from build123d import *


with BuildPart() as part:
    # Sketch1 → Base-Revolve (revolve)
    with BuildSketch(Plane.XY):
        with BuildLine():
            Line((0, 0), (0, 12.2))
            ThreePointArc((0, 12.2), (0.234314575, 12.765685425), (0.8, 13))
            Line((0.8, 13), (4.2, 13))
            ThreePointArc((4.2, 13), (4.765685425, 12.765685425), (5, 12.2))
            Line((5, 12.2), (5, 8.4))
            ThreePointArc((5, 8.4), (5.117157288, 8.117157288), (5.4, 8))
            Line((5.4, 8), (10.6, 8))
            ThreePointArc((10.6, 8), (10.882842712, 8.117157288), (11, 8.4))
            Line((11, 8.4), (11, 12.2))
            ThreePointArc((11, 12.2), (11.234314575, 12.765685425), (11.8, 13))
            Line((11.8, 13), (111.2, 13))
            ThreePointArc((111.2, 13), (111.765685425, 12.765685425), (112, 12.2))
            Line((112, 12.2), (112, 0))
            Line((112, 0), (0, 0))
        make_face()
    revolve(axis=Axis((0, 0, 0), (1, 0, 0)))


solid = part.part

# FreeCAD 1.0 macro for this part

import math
import FreeCAD as App
import Part
import Sketcher
Q = App.Units.Quantity

doc = App.newDocument("Part")
params = doc.addObject("Spreadsheet::Sheet", "Params")
for row, (alias, value) in enumerate([
    ("sketch1_radius", "0.8 mm"),
    ("sketch1_radius2", "0.4 mm"),
    ("sketch1_width", "112 mm"),
    ("sketch1_width2", "99.4 mm"),
    ("sketch1_width3", "5.2 mm"),
    ("revolution_angle", "360 deg"),
], start=1):
    params.set(f"A{row}", alias)
    params.set(f"B{row}", "=" + value)
    params.setAlias(f"B{row}", alias)

body = doc.addObject("PartDesign::Body", "Body")

# Sketch on XY plane
sketch1 = body.newObject("Sketcher::SketchObject", "Sketch")
sketch1.AttachmentSupport = (doc.getObject("XY_Plane"), [""])
sketch1.MapMode = "FlatFace"
sketch1.addGeometry([
    Part.LineSegment(App.Vector(0, 12.2, 0), App.Vector(0, 0, 0)),  # 0
    Part.LineSegment(App.Vector(0, 0, 0), App.Vector(112, 0, 0)),  # 1
    Part.LineSegment(App.Vector(112, 0, 0), App.Vector(112, 12.2, 0)),  # 2
    Part.ArcOfCircle(Part.Circle(App.Vector(111.2, 12.2, 0), App.Vector(0, 0, 1), 0.8), math.radians(0), math.radians(90)),  # 3
    Part.LineSegment(App.Vector(111.2, 13, 0), App.Vector(11.8, 13, 0)),  # 4
    Part.ArcOfCircle(Part.Circle(App.Vector(11.8, 12.2, 0), App.Vector(0, 0, 1), 0.8), math.radians(90), math.radians(180)),  # 5
    Part.LineSegment(App.Vector(11, 12.2, 0), App.Vector(11, 8.4, 0)),  # 6
    Part.ArcOfCircle(Part.Circle(App.Vector(10.6, 8.4, 0), App.Vector(0, 0, 1), 0.4), math.radians(-90), math.radians(0)),  # 7
    Part.LineSegment(App.Vector(10.6, 8, 0), App.Vector(5.4, 8, 0)),  # 8
    Part.ArcOfCircle(Part.Circle(App.Vector(5.4, 8.4, 0), App.Vector(0, 0, 1), 0.4), math.radians(-180), math.radians(-90)),  # 9
    Part.LineSegment(App.Vector(5, 8.4, 0), App.Vector(5, 12.2, 0)),  # 10
    Part.ArcOfCircle(Part.Circle(App.Vector(4.2, 12.2, 0), App.Vector(0, 0, 1), 0.8), math.radians(0), math.radians(90)),  # 11
    Part.LineSegment(App.Vector(4.2, 13, 0), App.Vector(0.8, 13, 0)),  # 12
    Part.ArcOfCircle(Part.Circle(App.Vector(0.8, 12.2, 0), App.Vector(0, 0, 1), 0.8), math.radians(90), math.radians(180)),  # 13
], False)
sketch1.addConstraint([
    Sketcher.Constraint("Coincident", 0, 2, 1, 1),
    Sketcher.Constraint("Coincident", 1, 2, 2, 1),
    Sketcher.Constraint("Tangent", 2, 2, 3, 1),
    Sketcher.Constraint("Tangent", 3, 2, 4, 1),
    Sketcher.Constraint("Tangent", 4, 2, 5, 1),
    Sketcher.Constraint("Tangent", 5, 2, 6, 1),
    Sketcher.Constraint("Tangent", 6, 2, 7, 2),
    Sketcher.Constraint("Tangent", 7, 1, 8, 1),
    Sketcher.Constraint("Tangent", 8, 2, 9, 2),
    Sketcher.Constraint("Tangent", 9, 1, 10, 1),
    Sketcher.Constraint("Tangent", 10, 2, 11, 1),
    Sketcher.Constraint("Tangent", 11, 2, 12, 1),
    Sketcher.Constraint("Tangent", 12, 2, 13, 1),
    Sketcher.Constraint("Tangent", 13, 2, 0, 1),
    Sketcher.Constraint("Vertical", 0),
    Sketcher.Constraint("Horizontal", 1),
    Sketcher.Constraint("Vertical", 2),
    Sketcher.Constraint("Horizontal", 4),
    Sketcher.Constraint("Vertical", 6),
    Sketcher.Constraint("Horizontal", 8),
    Sketcher.Constraint("Vertical", 10),
    Sketcher.Constraint("Horizontal", 12),
    Sketcher.Constraint("Coincident", 0, 2, -1, 1),
    Sketcher.Constraint("Equal", 3, 5),
    Sketcher.Constraint("Equal", 7, 9),
    Sketcher.Constraint("Equal", 5, 11),
    Sketcher.Constraint("Equal", 11, 13),
    Sketcher.Constraint("Horizontal", 5, 3, 11, 3),
    Sketcher.Constraint("Radius", 3, Q("0.8 mm")),
    Sketcher.Constraint("Radius", 7, Q("0.4 mm")),
    Sketcher.Constraint("DistanceX", 1, 1, 1, 2, Q("112 mm")),
    Sketcher.Constraint("DistanceX", 4, 2, 4, 1, Q("99.4 mm")),
    Sketcher.Constraint("DistanceX", 8, 2, 8, 1, Q("5.2 mm")),
    Sketcher.Constraint("DistanceY", 0, 2, 0, 1, Q("12.2 mm")),
    Sketcher.Constraint("DistanceY", 6, 2, 6, 1, Q("3.8 mm")),
])
sketch1.setExpression("Constraints[28]", "Params.sketch1_radius")
sketch1.setExpression("Constraints[29]", "Params.sketch1_radius2")
sketch1.setExpression("Constraints[30]", "Params.sketch1_width")
sketch1.setExpression("Constraints[31]", "Params.sketch1_width2")
sketch1.setExpression("Constraints[32]", "Params.sketch1_width3")
revolution = body.newObject("PartDesign::Revolution", "Revolution")
revolution.Profile = sketch1
revolution.ReferenceAxis = (sketch1, ["H_Axis"])
revolution.setExpression("Angle", "Params.revolution_angle")

doc.recompute()
